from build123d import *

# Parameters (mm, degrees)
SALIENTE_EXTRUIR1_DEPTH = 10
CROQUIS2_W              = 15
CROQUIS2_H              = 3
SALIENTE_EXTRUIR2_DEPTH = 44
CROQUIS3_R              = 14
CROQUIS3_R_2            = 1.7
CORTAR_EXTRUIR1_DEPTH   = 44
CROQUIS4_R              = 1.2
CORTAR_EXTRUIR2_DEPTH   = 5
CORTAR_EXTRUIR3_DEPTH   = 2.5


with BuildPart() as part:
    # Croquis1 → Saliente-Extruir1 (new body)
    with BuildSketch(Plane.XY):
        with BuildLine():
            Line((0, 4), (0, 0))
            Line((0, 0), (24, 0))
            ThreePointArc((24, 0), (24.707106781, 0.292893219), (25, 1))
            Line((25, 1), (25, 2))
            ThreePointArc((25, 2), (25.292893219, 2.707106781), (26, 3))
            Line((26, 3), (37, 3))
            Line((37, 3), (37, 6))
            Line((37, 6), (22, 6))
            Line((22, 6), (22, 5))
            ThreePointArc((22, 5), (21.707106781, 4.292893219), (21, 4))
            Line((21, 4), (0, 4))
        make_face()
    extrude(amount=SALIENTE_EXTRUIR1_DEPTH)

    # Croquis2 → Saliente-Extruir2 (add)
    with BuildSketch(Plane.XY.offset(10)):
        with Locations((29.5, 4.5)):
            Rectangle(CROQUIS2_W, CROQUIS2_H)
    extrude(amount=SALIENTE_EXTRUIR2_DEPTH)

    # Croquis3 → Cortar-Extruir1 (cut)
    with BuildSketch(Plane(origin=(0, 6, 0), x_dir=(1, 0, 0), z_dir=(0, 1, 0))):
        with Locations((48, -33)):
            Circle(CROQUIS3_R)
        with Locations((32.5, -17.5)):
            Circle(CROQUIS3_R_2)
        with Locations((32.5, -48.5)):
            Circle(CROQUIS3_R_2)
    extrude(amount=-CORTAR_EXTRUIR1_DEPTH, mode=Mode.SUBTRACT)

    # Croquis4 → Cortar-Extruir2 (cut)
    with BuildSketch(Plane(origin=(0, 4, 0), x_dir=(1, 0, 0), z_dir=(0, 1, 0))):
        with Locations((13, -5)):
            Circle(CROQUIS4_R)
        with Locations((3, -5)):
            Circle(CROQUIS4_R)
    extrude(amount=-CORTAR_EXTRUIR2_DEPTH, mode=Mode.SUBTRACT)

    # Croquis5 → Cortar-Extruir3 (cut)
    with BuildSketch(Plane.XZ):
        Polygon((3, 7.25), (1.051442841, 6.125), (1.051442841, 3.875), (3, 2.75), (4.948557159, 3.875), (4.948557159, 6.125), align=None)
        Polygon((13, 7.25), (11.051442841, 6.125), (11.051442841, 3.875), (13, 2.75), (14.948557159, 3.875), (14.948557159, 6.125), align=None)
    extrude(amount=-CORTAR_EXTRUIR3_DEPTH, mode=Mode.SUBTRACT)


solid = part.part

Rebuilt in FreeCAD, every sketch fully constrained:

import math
import FreeCAD as App
import Part
import Sketcher

V = App.Vector
Q = App.Units.Quantity


def add_polygon(sketch, points):
    """Adds a closed chain of lines whose ends are joined by coincident constraints."""
    first, n = sketch.GeometryCount, len(points)
    for a, b in zip(points, points[1:] + points[:1]):
        sketch.addGeometry(Part.LineSegment(App.Vector(*a, 0), App.Vector(*b, 0)), False)
    for i in range(n):
        sketch.addConstraint(Sketcher.Constraint("Coincident", first + i, 2, first + (i + 1) % n, 1))

doc = App.newDocument("Part")
body = doc.addObject("PartDesign::Body", "Body")

# Sketch on XY plane
sketch1 = body.newObject("Sketcher::SketchObject", "Sketch")
sketch1.AttachmentSupport = (doc.getObject("XY_Plane"), [""])
sketch1.MapMode = "FlatFace"
sketch1.addGeometry(Part.LineSegment(V(0, 4, 0), V(0, 0, 0)), False)
sketch1.addGeometry(Part.LineSegment(V(0, 0, 0), V(24, 0, 0)), False)
sketch1.addGeometry(Part.ArcOfCircle(Part.Circle(V(24, 1, 0), V(0, 0, 1), 1), math.radians(-90), math.radians(0)), False)
sketch1.addGeometry(Part.LineSegment(V(25, 1, 0), V(25, 2, 0)), False)
sketch1.addGeometry(Part.ArcOfCircle(Part.Circle(V(26, 2, 0), V(0, 0, 1), 1), math.radians(90), math.radians(180)), False)
sketch1.addGeometry(Part.LineSegment(V(26, 3, 0), V(37, 3, 0)), False)
sketch1.addGeometry(Part.LineSegment(V(37, 3, 0), V(37, 6, 0)), False)
sketch1.addGeometry(Part.LineSegment(V(37, 6, 0), V(22, 6, 0)), False)
sketch1.addGeometry(Part.LineSegment(V(22, 6, 0), V(22, 5, 0)), False)
sketch1.addGeometry(Part.ArcOfCircle(Part.Circle(V(21, 5, 0), V(0, 0, 1), 1), math.radians(-90), math.radians(0)), False)
sketch1.addGeometry(Part.LineSegment(V(21, 4, 0), V(0, 4, 0)), False)
sketch1.addConstraint(Sketcher.Constraint("Coincident", 0, 2, 1, 1))
sketch1.addConstraint(Sketcher.Constraint("Tangent", 1, 2, 2, 1))
sketch1.addConstraint(Sketcher.Constraint("Tangent", 2, 2, 3, 1))
sketch1.addConstraint(Sketcher.Constraint("Tangent", 3, 2, 4, 2))
sketch1.addConstraint(Sketcher.Constraint("Tangent", 4, 1, 5, 1))
sketch1.addConstraint(Sketcher.Constraint("Coincident", 5, 2, 6, 1))
sketch1.addConstraint(Sketcher.Constraint("Coincident", 6, 2, 7, 1))
sketch1.addConstraint(Sketcher.Constraint("Coincident", 7, 2, 8, 1))
sketch1.addConstraint(Sketcher.Constraint("Tangent", 8, 2, 9, 2))
sketch1.addConstraint(Sketcher.Constraint("Tangent", 9, 1, 10, 1))
sketch1.addConstraint(Sketcher.Constraint("Coincident", 10, 2, 0, 1))
sketch1.addConstraint(Sketcher.Constraint("Vertical", 0))
sketch1.addConstraint(Sketcher.Constraint("Horizontal", 1))
sketch1.addConstraint(Sketcher.Constraint("Vertical", 3))
sketch1.addConstraint(Sketcher.Constraint("Horizontal", 5))
sketch1.addConstraint(Sketcher.Constraint("Vertical", 6))
sketch1.addConstraint(Sketcher.Constraint("Horizontal", 7))
sketch1.addConstraint(Sketcher.Constraint("Vertical", 8))
sketch1.addConstraint(Sketcher.Constraint("Horizontal", 10))
sketch1.addConstraint(Sketcher.Constraint("Coincident", 0, 2, -1, 1))
sketch1.addConstraint(Sketcher.Constraint("Equal", 2, 4))
sketch1.addConstraint(Sketcher.Constraint("Equal", 4, 9))
sketch1.addConstraint(Sketcher.Constraint("Equal", 3, 8))
sketch1.addConstraint(Sketcher.Constraint("Radius", 2, Q("1 mm")))
sketch1.addConstraint(Sketcher.Constraint("DistanceX", 1, 1, 1, 2, Q("24 mm")))
sketch1.addConstraint(Sketcher.Constraint("DistanceX", 5, 1, 5, 2, Q("11 mm")))
sketch1.addConstraint(Sketcher.Constraint("DistanceX", 7, 2, 7, 1, Q("15 mm")))
sketch1.addConstraint(Sketcher.Constraint("DistanceY", 0, 2, 0, 1, Q("4 mm")))
sketch1.addConstraint(Sketcher.Constraint("DistanceY", 3, 1, 3, 2, Q("1 mm")))
pad1 = body.newObject("PartDesign::Pad", "Pad")
pad1.Profile = sketch1
pad1.Length = 10

# Sketch on XY plane
sketch2 = body.newObject("Sketcher::SketchObject", "Sketch001")
sketch2.AttachmentSupport = (doc.getObject("XY_Plane"), [""])
sketch2.MapMode = "FlatFace"
sketch2.AttachmentOffset = App.Placement(V(0, 0, 10), App.Rotation())
add_polygon(sketch2, [(22, 6), (22, 3), (37, 3), (37, 6)])  # lines 0-3
sketch2.addConstraint(Sketcher.Constraint("Vertical", 0))
sketch2.addConstraint(Sketcher.Constraint("Horizontal", 1))
sketch2.addConstraint(Sketcher.Constraint("Vertical", 2))
sketch2.addConstraint(Sketcher.Constraint("Horizontal", 3))
sketch2.addConstraint(Sketcher.Constraint("DistanceX", 1, 1, 1, 2, Q("15 mm")))
sketch2.addConstraint(Sketcher.Constraint("DistanceY", 0, 2, 0, 1, Q("3 mm")))
sketch2.addConstraint(Sketcher.Constraint("DistanceX", -1, 1, 0, 2, Q("22 mm")))
sketch2.addConstraint(Sketcher.Constraint("DistanceY", -1, 1, 0, 2, Q("3 mm")))
pad2 = body.newObject("PartDesign::Pad", "Pad001")
pad2.Profile = sketch2
pad2.Length = 44

# Sketch on XZ plane
sketch3 = body.newObject("Sketcher::SketchObject", "Sketch002")
sketch3.AttachmentSupport = (doc.getObject("XZ_Plane"), [""])
sketch3.MapMode = "FlatFace"
sketch3.AttachmentOffset = App.Placement(V(0, 0, -6), App.Rotation())
sketch3.addGeometry(Part.Circle(V(48, 33, 0), V(0, 0, 1), 14), False)
sketch3.addGeometry(Part.Circle(V(32.5, 17.5, 0), V(0, 0, 1), 1.7), False)
sketch3.addGeometry(Part.Circle(V(32.5, 48.5, 0), V(0, 0, 1), 1.7), False)
sketch3.addConstraint(Sketcher.Constraint("Equal", 1, 2))
sketch3.addConstraint(Sketcher.Constraint("Vertical", 1, 3, 2, 3))
sketch3.addConstraint(Sketcher.Constraint("Diameter", 0, Q("28 mm")))
sketch3.addConstraint(Sketcher.Constraint("Diameter", 1, Q("3.4 mm")))
sketch3.addConstraint(Sketcher.Constraint("DistanceX", -1, 1, 0, 3, Q("48 mm")))
sketch3.addConstraint(Sketcher.Constraint("DistanceY", -1, 1, 0, 3, Q("33 mm")))
sketch3.addConstraint(Sketcher.Constraint("DistanceY", 1, 3, 2, 3, Q("31 mm")))
sketch3.addConstraint(Sketcher.Constraint("DistanceX", -1, 1, 1, 3, Q("32.5 mm")))
sketch3.addConstraint(Sketcher.Constraint("DistanceY", -1, 1, 1, 3, Q("17.5 mm")))
pocket1 = body.newObject("PartDesign::Pocket", "Pocket")
pocket1.Profile = sketch3
pocket1.Length = 44
pocket1.Reversed = True

# Sketch on XZ plane
sketch4 = body.newObject("Sketcher::SketchObject", "Sketch003")
sketch4.AttachmentSupport = (doc.getObject("XZ_Plane"), [""])
sketch4.MapMode = "FlatFace"
sketch4.AttachmentOffset = App.Placement(V(0, 0, -4), App.Rotation())
sketch4.addGeometry(Part.Circle(V(13, 5, 0), V(0, 0, 1), 1.2), False)
sketch4.addGeometry(Part.Circle(V(3, 5, 0), V(0, 0, 1), 1.2), False)
sketch4.addConstraint(Sketcher.Constraint("Equal", 0, 1))
sketch4.addConstraint(Sketcher.Constraint("Horizontal", 0, 3, 1, 3))
sketch4.addConstraint(Sketcher.Constraint("Diameter", 0, Q("2.4 mm")))
sketch4.addConstraint(Sketcher.Constraint("DistanceX", -1, 1, 0, 3, Q("13 mm")))
sketch4.addConstraint(Sketcher.Constraint("DistanceY", -1, 1, 0, 3, Q("5 mm")))
sketch4.addConstraint(Sketcher.Constraint("DistanceX", -1, 1, 1, 3, Q("3 mm")))
pocket2 = body.newObject("PartDesign::Pocket", "Pocket001")
pocket2.Profile = sketch4
pocket2.Length = 5
pocket2.Reversed = True

# Sketch on XZ plane
sketch5 = body.newObject("Sketcher::SketchObject", "Sketch004")
sketch5.AttachmentSupport = (doc.getObject("XZ_Plane"), [""])
sketch5.MapMode = "FlatFace"
add_polygon(sketch5, [(3, 7.2), (1.1, 6.1), (1.1, 3.9), (3, 2.8), (4.9, 3.9), (4.9, 6.1)])  # lines 0-5
add_polygon(sketch5, [(13, 7.2), (11.1, 6.1), (11.1, 3.9), (13, 2.8), (14.9, 3.9), (14.9, 6.1)])  # lines 6-11
sketch5.addConstraint(Sketcher.Constraint("Vertical", 1))
sketch5.addConstraint(Sketcher.Constraint("Vertical", 4))
sketch5.addConstraint(Sketcher.Constraint("Vertical", 7))
sketch5.addConstraint(Sketcher.Constraint("Vertical", 10))
sketch5.addConstraint(Sketcher.Constraint("Parallel", 0, 3))
sketch5.addConstraint(Sketcher.Constraint("Parallel", 2, 5))
sketch5.addConstraint(Sketcher.Constraint("Parallel", 3, 6))
sketch5.addConstraint(Sketcher.Constraint("Parallel", 5, 8))
sketch5.addConstraint(Sketcher.Constraint("Parallel", 6, 9))
sketch5.addConstraint(Sketcher.Constraint("Parallel", 8, 11))
sketch5.addConstraint(Sketcher.Constraint("Horizontal", 1, 2, 3, 2))
sketch5.addConstraint(Sketcher.Constraint("Horizontal", 0, 2, 4, 2))
sketch5.addConstraint(Sketcher.Constraint("Horizontal", 4, 2, 6, 2))
sketch5.addConstraint(Sketcher.Constraint("Horizontal", 3, 2, 7, 2))
sketch5.addConstraint(Sketcher.Constraint("Horizontal", 2, 2, 8, 2))
sketch5.addConstraint(Sketcher.Constraint("Horizontal", 7, 2, 9, 2))
sketch5.addConstraint(Sketcher.Constraint("Horizontal", 6, 2, 10, 2))
sketch5.addConstraint(Sketcher.Constraint("Vertical", 2, 2, 5, 2))
sketch5.addConstraint(Sketcher.Constraint("Angle", 0, Q("-150 deg")))
sketch5.addConstraint(Sketcher.Constraint("DistanceX", -1, 1, 2, 2, Q("3 mm")))
sketch5.addConstraint(Sketcher.Constraint("DistanceX", -1, 1, 8, 2, Q("13 mm")))
sketch5.addConstraint(Sketcher.Constraint("DistanceY", 1, 2, 1, 1, Q("2.25 mm")))
sketch5.addConstraint(Sketcher.Constraint("DistanceY", 2, 2, 5, 2, Q("4.5 mm")))
sketch5.addConstraint(Sketcher.Constraint("DistanceY", -1, 1, 2, 2, Q("2.75 mm")))
pocket3 = body.newObject("PartDesign::Pocket", "Pocket002")
pocket3.Profile = sketch5
pocket3.Length = 2.5

doc.recompute()
